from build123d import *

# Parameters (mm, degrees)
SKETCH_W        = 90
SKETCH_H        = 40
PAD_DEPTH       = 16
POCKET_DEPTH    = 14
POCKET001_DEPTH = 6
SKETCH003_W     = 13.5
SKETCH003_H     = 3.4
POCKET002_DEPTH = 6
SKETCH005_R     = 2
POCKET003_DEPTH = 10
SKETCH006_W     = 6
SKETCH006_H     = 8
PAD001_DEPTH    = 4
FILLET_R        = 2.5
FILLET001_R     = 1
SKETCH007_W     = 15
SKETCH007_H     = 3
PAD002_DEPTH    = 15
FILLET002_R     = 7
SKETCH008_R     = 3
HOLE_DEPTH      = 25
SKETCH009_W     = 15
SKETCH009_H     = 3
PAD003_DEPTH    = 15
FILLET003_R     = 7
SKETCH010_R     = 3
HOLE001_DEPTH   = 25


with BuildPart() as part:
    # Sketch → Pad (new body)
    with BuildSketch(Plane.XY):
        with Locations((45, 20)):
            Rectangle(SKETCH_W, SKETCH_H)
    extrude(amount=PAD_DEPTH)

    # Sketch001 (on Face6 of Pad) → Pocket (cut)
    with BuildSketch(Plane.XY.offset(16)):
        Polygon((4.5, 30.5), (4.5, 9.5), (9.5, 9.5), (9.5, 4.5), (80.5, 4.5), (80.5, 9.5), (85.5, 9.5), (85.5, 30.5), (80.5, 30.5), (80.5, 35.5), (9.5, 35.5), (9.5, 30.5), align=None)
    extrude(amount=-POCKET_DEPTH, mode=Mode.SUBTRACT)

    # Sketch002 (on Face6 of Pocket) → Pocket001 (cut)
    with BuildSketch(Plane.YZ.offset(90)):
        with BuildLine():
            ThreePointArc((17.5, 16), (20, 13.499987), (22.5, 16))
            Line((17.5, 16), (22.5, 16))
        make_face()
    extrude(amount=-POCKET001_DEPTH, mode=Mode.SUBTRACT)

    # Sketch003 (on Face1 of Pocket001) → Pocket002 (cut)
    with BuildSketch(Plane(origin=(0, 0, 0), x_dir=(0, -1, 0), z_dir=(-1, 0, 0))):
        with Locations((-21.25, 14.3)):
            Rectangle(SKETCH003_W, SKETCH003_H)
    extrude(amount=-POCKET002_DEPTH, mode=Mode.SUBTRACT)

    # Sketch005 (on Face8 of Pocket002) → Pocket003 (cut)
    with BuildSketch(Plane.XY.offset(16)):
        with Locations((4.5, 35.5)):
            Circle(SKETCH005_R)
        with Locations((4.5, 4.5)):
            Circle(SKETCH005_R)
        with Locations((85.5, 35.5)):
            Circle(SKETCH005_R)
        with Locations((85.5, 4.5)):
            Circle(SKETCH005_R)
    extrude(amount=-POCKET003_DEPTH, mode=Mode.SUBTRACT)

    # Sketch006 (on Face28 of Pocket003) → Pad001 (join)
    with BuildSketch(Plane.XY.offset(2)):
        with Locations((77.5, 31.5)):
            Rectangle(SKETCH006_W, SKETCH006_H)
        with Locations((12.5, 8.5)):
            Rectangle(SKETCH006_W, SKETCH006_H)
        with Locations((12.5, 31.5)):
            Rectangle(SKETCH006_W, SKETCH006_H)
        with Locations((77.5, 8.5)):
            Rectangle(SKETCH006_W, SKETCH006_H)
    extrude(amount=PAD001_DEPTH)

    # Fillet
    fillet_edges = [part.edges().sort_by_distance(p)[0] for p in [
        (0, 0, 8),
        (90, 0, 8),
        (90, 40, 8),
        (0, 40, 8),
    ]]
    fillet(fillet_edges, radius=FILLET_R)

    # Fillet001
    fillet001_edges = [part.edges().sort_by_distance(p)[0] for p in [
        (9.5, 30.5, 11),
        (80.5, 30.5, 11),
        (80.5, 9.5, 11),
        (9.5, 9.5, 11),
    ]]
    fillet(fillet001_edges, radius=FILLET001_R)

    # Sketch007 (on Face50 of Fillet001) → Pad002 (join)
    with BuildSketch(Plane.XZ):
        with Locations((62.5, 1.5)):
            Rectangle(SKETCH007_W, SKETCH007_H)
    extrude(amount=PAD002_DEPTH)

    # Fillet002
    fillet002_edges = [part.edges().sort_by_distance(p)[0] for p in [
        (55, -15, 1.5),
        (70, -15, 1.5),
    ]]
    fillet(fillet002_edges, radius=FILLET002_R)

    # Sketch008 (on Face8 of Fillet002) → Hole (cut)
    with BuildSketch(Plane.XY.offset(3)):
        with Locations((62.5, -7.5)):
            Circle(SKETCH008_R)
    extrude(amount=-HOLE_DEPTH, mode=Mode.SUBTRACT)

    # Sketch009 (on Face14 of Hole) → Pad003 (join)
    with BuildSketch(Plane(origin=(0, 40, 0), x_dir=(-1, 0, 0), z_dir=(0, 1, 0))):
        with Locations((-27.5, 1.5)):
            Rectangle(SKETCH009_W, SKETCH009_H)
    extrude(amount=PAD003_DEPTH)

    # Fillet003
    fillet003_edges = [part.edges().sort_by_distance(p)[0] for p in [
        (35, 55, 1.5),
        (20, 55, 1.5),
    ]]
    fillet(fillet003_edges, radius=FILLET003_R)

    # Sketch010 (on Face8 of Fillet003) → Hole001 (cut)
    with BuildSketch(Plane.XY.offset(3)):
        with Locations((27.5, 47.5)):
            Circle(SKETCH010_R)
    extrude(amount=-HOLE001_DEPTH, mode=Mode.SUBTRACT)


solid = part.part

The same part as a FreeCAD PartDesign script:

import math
import FreeCAD as App
import Part
import Sketcher
from FreeCAD import Vector


def edges_at(feature, points):
    """Names of the edges that pass closest to the given points."""
    edges = feature.Shape.Edges
    near = lambda p: min(range(len(edges)), key=lambda i: edges[i].distToShape(Part.Vertex(*p))[0])
    return sorted({f"Edge{near(p) + 1}" for p in points})


def add_polygon(sketch, points):
    """Adds a closed chain of lines whose ends are joined by coincident constraints."""
    first, n = sketch.GeometryCount, len(points)
    for a, b in zip(points, points[1:] + points[:1]):
        sketch.addGeometry(Part.LineSegment(App.Vector(*a, 0), App.Vector(*b, 0)), False)
    for i in range(n):
        sketch.addConstraint(Sketcher.Constraint("Coincident", first + i, 2, first + (i + 1) % n, 1))

doc = App.newDocument("Part")
body = doc.addObject("PartDesign::Body", "Body")

# Sketch on XY plane
sketch1 = body.newObject("Sketcher::SketchObject", "Sketch")
sketch1.AttachmentSupport = (doc.getObject("XY_Plane"), [""])
sketch1.MapMode = "FlatFace"
add_polygon(sketch1, [(0, 40), (0, 0), (90, 0), (90, 40)])  # lines 0-3
sketch1.addConstraint([
    Sketcher.Constraint("Vertical", 0),
    Sketcher.Constraint("Horizontal", 1),
    Sketcher.Constraint("Vertical", 2),
    Sketcher.Constraint("Horizontal", 3),
    Sketcher.Constraint("Coincident", 0, 2, -1, 1),
    Sketcher.Constraint("DistanceX", 1, 1, 1, 2, 90.0),
    Sketcher.Constraint("DistanceY", 0, 2, 0, 1, 40.0),
])
pad1 = body.newObject("PartDesign::Pad", "Pad")
pad1.Profile = sketch1
pad1.Length = 16

# Sketch on XY plane
sketch2 = body.newObject("Sketcher::SketchObject", "Sketch001")
sketch2.AttachmentSupport = (doc.getObject("XY_Plane"), [""])
sketch2.MapMode = "FlatFace"
sketch2.AttachmentOffset = App.Placement(Vector(0, 0, 16), App.Rotation())
add_polygon(sketch2, [(4, 30), (4, 10), (10, 10), (10, 4), (80, 4), (80, 10), (86, 10), (86, 30), (80, 30), (80, 36), (10, 36), (10, 30)])  # lines 0-11
sketch2.addConstraint([
    Sketcher.Constraint("Vertical", 0),
    Sketcher.Constraint("Horizontal", 1),
    Sketcher.Constraint("Vertical", 2),
    Sketcher.Constraint("Horizontal", 3),
    Sketcher.Constraint("Vertical", 4),
    Sketcher.Constraint("Horizontal", 5),
    Sketcher.Constraint("Vertical", 6),
    Sketcher.Constraint("Horizontal", 7),
    Sketcher.Constraint("Vertical", 8),
    Sketcher.Constraint("Horizontal", 9),
    Sketcher.Constraint("Vertical", 10),
    Sketcher.Constraint("Horizontal", 11),
    Sketcher.Constraint("Horizontal", 1, 2, 4, 2),
    Sketcher.Constraint("Horizontal", 7, 2, 10, 2),
    Sketcher.Constraint("Vertical", 4, 2, 7, 2),
    Sketcher.Constraint("Vertical", 2, 2, 9, 2),
    Sketcher.Constraint("Equal", 1, 5),
    Sketcher.Constraint("Equal", 11, 2),
    Sketcher.Constraint("Equal", 4, 8),
    Sketcher.Constraint("DistanceX", 1, 1, 1, 2, 5.0),
    Sketcher.Constraint("DistanceX", 3, 1, 3, 2, 71.0),
    Sketcher.Constraint("DistanceY", 0, 2, 0, 1, 21.0),
    Sketcher.Constraint("DistanceX", -1, 1, 0, 2, 4.5),
    Sketcher.Constraint("DistanceY", -1, 1, 0, 2, 9.5),
])
pocket1 = body.newObject("PartDesign::Pocket", "Pocket")
pocket1.Profile = sketch2
pocket1.Length = 14

# Sketch on YZ plane
sketch3 = body.newObject("Sketcher::SketchObject", "Sketch002")
sketch3.AttachmentSupport = (doc.getObject("YZ_Plane"), [""])
sketch3.MapMode = "FlatFace"
sketch3.AttachmentOffset = App.Placement(Vector(0, 0, 90), App.Rotation())
sketch3.addGeometry([
    Part.ArcOfCircle(Part.Circle(Vector(20, 16, 0), Vector(0, 0, 1), 2.5), math.radians(180), math.radians(360)),
    Part.LineSegment(Vector(22.5, 16, 0), Vector(17.5, 16, 0)),
], False)
sketch3.addConstraint([
    Sketcher.Constraint("Coincident", 0, 1, 1, 2),
    Sketcher.Constraint("Coincident", 1, 1, 0, 2),
    Sketcher.Constraint("Horizontal", 1),
    Sketcher.Constraint("Radius", 0, 2.5),
    Sketcher.Constraint("DistanceX", -1, 1, 0, 3, 20.0),
    Sketcher.Constraint("DistanceY", -1, 1, 0, 1, 16.0),
    Sketcher.Constraint("DistanceY", -1, 1, 0, 3, 15.999987),
])
pocket2 = body.newObject("PartDesign::Pocket", "Pocket001")
pocket2.Profile = sketch3
pocket2.Length = 6

# Sketch on YZ plane
sketch4 = body.newObject("Sketcher::SketchObject", "Sketch003")
sketch4.AttachmentSupport = (doc.getObject("YZ_Plane"), [""])
sketch4.MapMode = "FlatFace"
add_polygon(sketch4, [(28, 16), (28, 12.6), (14.5, 12.6), (14.5, 16)])  # lines 0-3
sketch4.addConstraint([
    Sketcher.Constraint("Vertical", 0),
    Sketcher.Constraint("Horizontal", 1),
    Sketcher.Constraint("Vertical", 2),
    Sketcher.Constraint("Horizontal", 3),
    Sketcher.Constraint("DistanceX", 1, 2, 1, 1, 13.5),
    Sketcher.Constraint("DistanceY", 0, 2, 0, 1, 3.4),
    Sketcher.Constraint("DistanceX", -1, 1, 0, 2, 28.0),
    Sketcher.Constraint("DistanceY", -1, 1, 2, 2, 16.0),
])
pocket3 = body.newObject("PartDesign::Pocket", "Pocket002")
pocket3.Profile = sketch4
pocket3.Length = 6
pocket3.Reversed = True

# Sketch on XY plane
sketch5 = body.newObject("Sketcher::SketchObject", "Sketch004")
sketch5.AttachmentSupport = (doc.getObject("XY_Plane"), [""])
sketch5.MapMode = "FlatFace"
sketch5.AttachmentOffset = App.Placement(Vector(0, 0, 16), App.Rotation())
sketch5.addGeometry([
    Part.Circle(Vector(4.5, 35.5, 0), Vector(0, 0, 1), 2),
    Part.Circle(Vector(4.5, 4.5, 0), Vector(0, 0, 1), 2),
    Part.Circle(Vector(85.5, 35.5, 0), Vector(0, 0, 1), 2),
    Part.Circle(Vector(85.5, 4.5, 0), Vector(0, 0, 1), 2),
], False)
sketch5.addConstraint([
    Sketcher.Constraint("Equal", 0, 1),
    Sketcher.Constraint("Equal", 1, 2),
    Sketcher.Constraint("Equal", 2, 3),
    Sketcher.Constraint("Horizontal", 0, 3, 2, 3),
    Sketcher.Constraint("Horizontal", 1, 3, 3, 3),
    Sketcher.Constraint("Vertical", 0, 3, 1, 3),
    Sketcher.Constraint("Vertical", 2, 3, 3, 3),
    Sketcher.Constraint("Diameter", 0, 4.0),
    Sketcher.Constraint("DistanceY", 1, 3, 0, 3, 31.0),
    Sketcher.Constraint("DistanceX", 0, 3, 2, 3, 81.0),
    Sketcher.Constraint("DistanceX", -1, 1, 0, 3, 4.5),
    Sketcher.Constraint("DistanceY", -1, 1, 0, 3, 35.5),
])
pocket4 = body.newObject("PartDesign::Pocket", "Pocket003")
pocket4.Profile = sketch5
pocket4.Length = 10

# Sketch on XY plane
sketch6 = body.newObject("Sketcher::SketchObject", "Sketch005")
sketch6.AttachmentSupport = (doc.getObject("XY_Plane"), [""])
sketch6.MapMode = "FlatFace"
sketch6.AttachmentOffset = App.Placement(Vector(0, 0, 2), App.Rotation())
add_polygon(sketch6, [(74, 36), (74, 28), (80, 28), (80, 36)])  # lines 0-3
add_polygon(sketch6, [(10, 12), (10, 4), (16, 4), (16, 12)])  # lines 4-7
add_polygon(sketch6, [(10, 36), (10, 28), (16, 28), (16, 36)])  # lines 8-11
add_polygon(sketch6, [(74, 12), (74, 4), (80, 4), (80, 12)])  # lines 12-15
sketch6.addConstraint([
    Sketcher.Constraint("Vertical", 0),
    Sketcher.Constraint("Horizontal", 1),
    Sketcher.Constraint("Vertical", 2),
    Sketcher.Constraint("Horizontal", 3),
    Sketcher.Constraint("Vertical", 4),
    Sketcher.Constraint("Horizontal", 5),
    Sketcher.Constraint("Vertical", 6),
    Sketcher.Constraint("Horizontal", 7),
    Sketcher.Constraint("Vertical", 8),
    Sketcher.Constraint("Horizontal", 9),
    Sketcher.Constraint("Vertical", 10),
    Sketcher.Constraint("Horizontal", 11),
    Sketcher.Constraint("Vertical", 12),
    Sketcher.Constraint("Horizontal", 13),
    Sketcher.Constraint("Vertical", 14),
    Sketcher.Constraint("Horizontal", 15),
    Sketcher.Constraint("Horizontal", 1, 2, 8, 2),
    Sketcher.Constraint("Horizontal", 3, 2, 10, 2),
    Sketcher.Constraint("Horizontal", 5, 2, 12, 2),
    Sketcher.Constraint("Horizontal", 7, 2, 14, 2),
    Sketcher.Constraint("Vertical", 7, 2, 8, 2),
    Sketcher.Constraint("Vertical", 6, 2, 9, 2),
    Sketcher.Constraint("Vertical", 3, 2, 12, 2),
    Sketcher.Constraint("Vertical", 2, 2, 13, 2),
    Sketcher.Constraint("Equal", 3, 5),
    Sketcher.Constraint("Equal", 2, 4),
    Sketcher.Constraint("DistanceX", 1, 1, 1, 2, 6.0),
    Sketcher.Constraint("DistanceY", 0, 2, 0, 1, 8.0),
    Sketcher.Constraint("DistanceX", 4, 2, 0, 2, 65.0),
    Sketcher.Constraint("DistanceY", 4, 2, 0, 2, 23.0),
    Sketcher.Constraint("DistanceX", -1, 1, 0, 2, 74.5),
    Sketcher.Constraint("DistanceY", -1, 1, 0, 2, 27.5),
])
pad2 = body.newObject("PartDesign::Pad", "Pad001")
pad2.Profile = sketch6
pad2.Length = 4
doc.recompute()

fillet = body.newObject("PartDesign::Fillet", "Fillet")
fillet.Base = (pad2, edges_at(pad2, [
    (0, 0, 8),
    (90, 0, 8),
    (90, 40, 8),
    (0, 40, 8),
]))
fillet.Radius = 2.5
doc.recompute()

fillet2 = body.newObject("PartDesign::Fillet", "Fillet001")
fillet2.Base = (fillet, edges_at(fillet, [
    (9.5, 30.5, 11),
    (80.5, 30.5, 11),
    (80.5, 9.5, 11),
    (9.5, 9.5, 11),
]))
fillet2.Radius = 1

# Sketch on XZ plane
sketch7 = body.newObject("Sketcher::SketchObject", "Sketch006")
sketch7.AttachmentSupport = (doc.getObject("XZ_Plane"), [""])
sketch7.MapMode = "FlatFace"
add_polygon(sketch7, [(55, 3), (55, 0), (70, 0), (70, 3)])  # lines 0-3
sketch7.addConstraint([
    Sketcher.Constraint("Vertical", 0),
    Sketcher.Constraint("Horizontal", 1),
    Sketcher.Constraint("Vertical", 2),
    Sketcher.Constraint("Horizontal", 3),
    Sketcher.Constraint("PointOnObject", 0, 2, -1),
    Sketcher.Constraint("DistanceX", 1, 1, 1, 2, 15.0),
    Sketcher.Constraint("DistanceY", 0, 2, 0, 1, 3.0),
    Sketcher.Constraint("DistanceX", -1, 1, 0, 2, 55.0),
])
pad3 = body.newObject("PartDesign::Pad", "Pad002")
pad3.Profile = sketch7
pad3.Length = 15
doc.recompute()

fillet3 = body.newObject("PartDesign::Fillet", "Fillet002")
fillet3.Base = (pad3, edges_at(pad3, [(55, -15, 1.5), (70, -15, 1.5)]))
fillet3.Radius = 7

# Sketch on XY plane
sketch8 = body.newObject("Sketcher::SketchObject", "Sketch007")
sketch8.AttachmentSupport = (doc.getObject("XY_Plane"), [""])
sketch8.MapMode = "FlatFace"
sketch8.AttachmentOffset = App.Placement(Vector(0, 0, 3), App.Rotation())
sketch8.addGeometry(Part.Circle(Vector(62.5, -7.5, 0), Vector(0, 0, 1), 3), False)
sketch8.addConstraint([
    Sketcher.Constraint("Diameter", 0, 6.0),
    Sketcher.Constraint("DistanceX", -1, 1, 0, 3, 62.5),
    Sketcher.Constraint("DistanceY", 0, 3, -1, 1, 7.5),
])
pocket5 = body.newObject("PartDesign::Pocket", "Pocket004")
pocket5.Profile = sketch8
pocket5.Length = 25

# Sketch on XZ plane
sketch9 = body.newObject("Sketcher::SketchObject", "Sketch008")
sketch9.AttachmentSupport = (doc.getObject("XZ_Plane"), [""])
sketch9.MapMode = "FlatFace"
sketch9.AttachmentOffset = App.Placement(Vector(0, 0, -40), App.Rotation())
add_polygon(sketch9, [(35, 3), (35, 0), (20, 0), (20, 3)])  # lines 0-3
sketch9.addConstraint([
    Sketcher.Constraint("Vertical", 0),
    Sketcher.Constraint("Horizontal", 1),
    Sketcher.Constraint("Vertical", 2),
    Sketcher.Constraint("Horizontal", 3),
    Sketcher.Constraint("PointOnObject", 0, 2, -1),
    Sketcher.Constraint("DistanceX", 1, 2, 1, 1, 15.0),
    Sketcher.Constraint("DistanceY", 0, 2, 0, 1, 3.0),
    Sketcher.Constraint("DistanceX", -1, 1, 0, 2, 35.0),
])
pad4 = body.newObject("PartDesign::Pad", "Pad003")
pad4.Profile = sketch9
pad4.Length = 15
pad4.Reversed = True
doc.recompute()

fillet4 = body.newObject("PartDesign::Fillet", "Fillet003")
fillet4.Base = (pad4, edges_at(pad4, [(35, 55, 1.5), (20, 55, 1.5)]))
fillet4.Radius = 7

# Sketch on XY plane
sketch10 = body.newObject("Sketcher::SketchObject", "Sketch009")
sketch10.AttachmentSupport = (doc.getObject("XY_Plane"), [""])
sketch10.MapMode = "FlatFace"
sketch10.AttachmentOffset = App.Placement(Vector(0, 0, 3), App.Rotation())
sketch10.addGeometry(Part.Circle(Vector(27.5, 47.5, 0), Vector(0, 0, 1), 3), False)
sketch10.addConstraint([
    Sketcher.Constraint("Diameter", 0, 6.0),
    Sketcher.Constraint("DistanceX", -1, 1, 0, 3, 27.5),
    Sketcher.Constraint("DistanceY", -1, 1, 0, 3, 47.5),
])
pocket6 = body.newObject("PartDesign::Pocket", "Pocket005")
pocket6.Profile = sketch10
pocket6.Length = 25

doc.recompute()
